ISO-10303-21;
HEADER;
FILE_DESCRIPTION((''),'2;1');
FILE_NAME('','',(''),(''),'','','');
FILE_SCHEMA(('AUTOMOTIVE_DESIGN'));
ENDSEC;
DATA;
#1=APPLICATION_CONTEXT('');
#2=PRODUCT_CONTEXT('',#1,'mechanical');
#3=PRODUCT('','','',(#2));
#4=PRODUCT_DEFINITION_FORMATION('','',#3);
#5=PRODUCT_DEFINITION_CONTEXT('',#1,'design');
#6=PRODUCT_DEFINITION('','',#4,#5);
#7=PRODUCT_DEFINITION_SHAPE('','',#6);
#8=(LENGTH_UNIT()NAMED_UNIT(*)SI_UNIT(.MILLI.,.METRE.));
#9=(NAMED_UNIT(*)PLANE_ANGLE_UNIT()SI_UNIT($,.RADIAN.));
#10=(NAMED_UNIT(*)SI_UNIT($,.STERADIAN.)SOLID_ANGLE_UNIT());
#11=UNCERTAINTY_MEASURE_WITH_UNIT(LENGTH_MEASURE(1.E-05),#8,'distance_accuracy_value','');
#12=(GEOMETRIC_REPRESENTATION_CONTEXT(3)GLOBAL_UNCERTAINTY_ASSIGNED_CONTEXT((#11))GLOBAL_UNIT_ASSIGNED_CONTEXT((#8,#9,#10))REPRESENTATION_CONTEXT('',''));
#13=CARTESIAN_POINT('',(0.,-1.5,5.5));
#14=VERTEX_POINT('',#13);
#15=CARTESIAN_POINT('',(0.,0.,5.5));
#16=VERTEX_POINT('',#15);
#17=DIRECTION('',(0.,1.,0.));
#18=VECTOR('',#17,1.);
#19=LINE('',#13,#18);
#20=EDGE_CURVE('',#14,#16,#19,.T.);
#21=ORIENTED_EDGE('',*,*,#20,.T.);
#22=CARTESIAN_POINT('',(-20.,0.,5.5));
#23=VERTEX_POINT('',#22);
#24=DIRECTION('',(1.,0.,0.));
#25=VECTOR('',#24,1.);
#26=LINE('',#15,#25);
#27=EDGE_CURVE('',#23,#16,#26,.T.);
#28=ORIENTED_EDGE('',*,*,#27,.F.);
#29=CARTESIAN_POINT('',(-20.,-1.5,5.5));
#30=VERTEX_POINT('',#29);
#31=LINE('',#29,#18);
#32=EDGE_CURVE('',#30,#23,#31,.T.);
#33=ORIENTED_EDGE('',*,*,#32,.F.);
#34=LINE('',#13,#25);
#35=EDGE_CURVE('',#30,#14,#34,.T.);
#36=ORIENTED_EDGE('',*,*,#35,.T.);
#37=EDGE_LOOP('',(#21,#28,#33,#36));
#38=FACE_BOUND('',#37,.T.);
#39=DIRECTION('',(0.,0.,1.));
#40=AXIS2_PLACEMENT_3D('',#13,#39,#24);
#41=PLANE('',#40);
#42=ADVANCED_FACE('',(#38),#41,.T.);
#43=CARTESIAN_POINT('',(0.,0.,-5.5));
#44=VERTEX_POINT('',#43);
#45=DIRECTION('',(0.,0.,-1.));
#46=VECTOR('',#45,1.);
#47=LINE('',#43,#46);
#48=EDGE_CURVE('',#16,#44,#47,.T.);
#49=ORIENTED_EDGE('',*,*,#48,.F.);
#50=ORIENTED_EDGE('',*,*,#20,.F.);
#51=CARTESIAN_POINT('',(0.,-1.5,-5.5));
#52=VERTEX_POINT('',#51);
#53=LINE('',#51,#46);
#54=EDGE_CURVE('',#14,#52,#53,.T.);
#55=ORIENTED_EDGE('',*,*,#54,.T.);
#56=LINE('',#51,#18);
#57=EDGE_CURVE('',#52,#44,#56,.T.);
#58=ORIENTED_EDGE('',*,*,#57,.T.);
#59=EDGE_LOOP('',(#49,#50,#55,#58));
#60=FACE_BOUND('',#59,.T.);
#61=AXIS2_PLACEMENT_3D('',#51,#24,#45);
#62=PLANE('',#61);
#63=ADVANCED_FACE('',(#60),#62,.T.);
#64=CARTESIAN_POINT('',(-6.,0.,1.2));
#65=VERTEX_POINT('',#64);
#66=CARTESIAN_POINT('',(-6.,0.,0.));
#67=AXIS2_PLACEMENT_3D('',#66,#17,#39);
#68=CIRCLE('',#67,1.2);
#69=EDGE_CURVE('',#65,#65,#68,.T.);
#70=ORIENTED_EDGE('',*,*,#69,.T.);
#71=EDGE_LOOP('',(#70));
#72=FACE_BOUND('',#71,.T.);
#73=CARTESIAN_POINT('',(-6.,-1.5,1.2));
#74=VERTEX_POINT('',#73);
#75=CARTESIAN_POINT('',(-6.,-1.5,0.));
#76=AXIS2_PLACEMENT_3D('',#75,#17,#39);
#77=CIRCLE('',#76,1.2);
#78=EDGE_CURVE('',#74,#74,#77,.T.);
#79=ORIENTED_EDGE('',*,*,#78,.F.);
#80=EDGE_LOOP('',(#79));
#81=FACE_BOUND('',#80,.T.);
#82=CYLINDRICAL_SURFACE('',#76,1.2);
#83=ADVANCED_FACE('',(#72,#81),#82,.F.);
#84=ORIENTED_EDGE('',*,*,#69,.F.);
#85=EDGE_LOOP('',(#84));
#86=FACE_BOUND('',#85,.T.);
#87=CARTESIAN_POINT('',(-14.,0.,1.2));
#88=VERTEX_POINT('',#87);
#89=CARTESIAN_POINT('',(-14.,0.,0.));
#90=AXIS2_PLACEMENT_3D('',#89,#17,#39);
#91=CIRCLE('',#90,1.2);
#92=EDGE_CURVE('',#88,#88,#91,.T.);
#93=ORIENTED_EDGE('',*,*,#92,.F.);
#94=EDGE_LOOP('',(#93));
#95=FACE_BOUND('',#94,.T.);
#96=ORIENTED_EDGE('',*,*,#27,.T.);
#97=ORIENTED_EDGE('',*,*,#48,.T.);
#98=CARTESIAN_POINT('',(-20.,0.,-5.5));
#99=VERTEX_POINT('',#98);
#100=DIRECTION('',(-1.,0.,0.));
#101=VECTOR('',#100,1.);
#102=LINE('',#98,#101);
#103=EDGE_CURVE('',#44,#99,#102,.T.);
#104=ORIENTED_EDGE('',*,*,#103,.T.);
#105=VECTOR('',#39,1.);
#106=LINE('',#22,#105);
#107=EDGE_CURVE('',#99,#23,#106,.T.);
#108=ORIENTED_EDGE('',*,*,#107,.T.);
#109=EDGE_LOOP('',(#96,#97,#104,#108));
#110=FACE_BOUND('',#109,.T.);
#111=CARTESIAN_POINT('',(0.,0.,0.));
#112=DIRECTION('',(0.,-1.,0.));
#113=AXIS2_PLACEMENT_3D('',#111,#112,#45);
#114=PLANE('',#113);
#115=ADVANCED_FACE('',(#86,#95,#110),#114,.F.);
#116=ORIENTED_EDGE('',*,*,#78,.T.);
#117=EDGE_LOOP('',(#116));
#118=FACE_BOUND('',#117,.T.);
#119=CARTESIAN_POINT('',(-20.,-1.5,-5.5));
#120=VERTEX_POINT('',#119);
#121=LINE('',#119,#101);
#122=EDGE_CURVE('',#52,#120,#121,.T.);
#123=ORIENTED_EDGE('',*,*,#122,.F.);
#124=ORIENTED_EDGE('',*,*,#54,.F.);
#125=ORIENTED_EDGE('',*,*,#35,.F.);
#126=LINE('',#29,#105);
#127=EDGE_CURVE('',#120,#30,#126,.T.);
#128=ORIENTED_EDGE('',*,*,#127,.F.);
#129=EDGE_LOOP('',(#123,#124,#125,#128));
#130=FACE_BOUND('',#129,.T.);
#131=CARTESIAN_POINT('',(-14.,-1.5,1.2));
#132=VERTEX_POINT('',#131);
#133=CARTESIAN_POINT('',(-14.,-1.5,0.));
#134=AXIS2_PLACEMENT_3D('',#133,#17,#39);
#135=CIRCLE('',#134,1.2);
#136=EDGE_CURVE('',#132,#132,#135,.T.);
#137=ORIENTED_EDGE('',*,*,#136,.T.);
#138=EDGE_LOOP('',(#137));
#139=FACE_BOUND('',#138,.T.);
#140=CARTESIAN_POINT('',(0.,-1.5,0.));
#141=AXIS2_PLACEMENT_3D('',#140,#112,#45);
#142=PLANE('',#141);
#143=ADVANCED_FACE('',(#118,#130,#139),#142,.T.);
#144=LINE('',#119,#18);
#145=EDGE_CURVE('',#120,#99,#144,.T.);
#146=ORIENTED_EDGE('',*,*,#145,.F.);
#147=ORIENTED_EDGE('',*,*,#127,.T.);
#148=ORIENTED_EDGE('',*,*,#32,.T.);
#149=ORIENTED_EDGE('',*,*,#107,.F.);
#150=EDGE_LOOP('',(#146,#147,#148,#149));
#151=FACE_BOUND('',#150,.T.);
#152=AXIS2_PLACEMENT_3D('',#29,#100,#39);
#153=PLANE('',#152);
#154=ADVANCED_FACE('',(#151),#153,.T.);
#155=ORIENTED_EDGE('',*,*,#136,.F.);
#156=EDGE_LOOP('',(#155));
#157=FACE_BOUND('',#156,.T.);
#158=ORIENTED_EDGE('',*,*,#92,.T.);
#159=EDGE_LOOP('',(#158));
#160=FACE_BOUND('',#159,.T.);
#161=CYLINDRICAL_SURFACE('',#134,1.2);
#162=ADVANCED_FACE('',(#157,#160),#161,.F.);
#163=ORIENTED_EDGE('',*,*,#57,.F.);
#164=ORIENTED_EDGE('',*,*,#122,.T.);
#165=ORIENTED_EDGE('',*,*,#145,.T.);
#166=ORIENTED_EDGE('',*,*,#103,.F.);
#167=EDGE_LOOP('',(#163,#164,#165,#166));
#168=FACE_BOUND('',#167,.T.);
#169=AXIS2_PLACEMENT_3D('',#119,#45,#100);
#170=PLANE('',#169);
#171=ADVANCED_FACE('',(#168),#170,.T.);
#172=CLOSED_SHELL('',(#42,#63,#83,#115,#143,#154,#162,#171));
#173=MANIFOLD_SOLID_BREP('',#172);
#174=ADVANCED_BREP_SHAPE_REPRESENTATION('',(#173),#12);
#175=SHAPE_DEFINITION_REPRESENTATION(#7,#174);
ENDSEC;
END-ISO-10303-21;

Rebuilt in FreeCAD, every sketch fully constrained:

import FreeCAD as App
import Part
import Sketcher

V = App.Vector


def add_polygon(sketch, points):
    """Adds a closed chain of lines whose ends are joined by coincident constraints."""
    first, n = sketch.GeometryCount, len(points)
    for a, b in zip(points, points[1:] + points[:1]):
        sketch.addGeometry(Part.LineSegment(App.Vector(*a, 0), App.Vector(*b, 0)), False)
    for i in range(n):
        sketch.addConstraint(Sketcher.Constraint("Coincident", first + i, 2, first + (i + 1) % n, 1))

doc = App.newDocument("Part")
params = doc.addObject("Spreadsheet::Sheet", "Params")
for row, (alias, value) in enumerate([
    ("sketch1_width", "20 mm"),
    ("sketch1_height", "11 mm"),
    ("pad1_length", "1.5 mm"),
    ("sketch2_diameter", "2.4 mm"),
    ("pocket1_length", "1.5 mm"),
], start=1):
    params.set(f"A{row}", alias)
    params.set(f"B{row}", "=" + value)
    params.setAlias(f"B{row}", alias)

body = doc.addObject("PartDesign::Body", "Body")

# Sketch on XZ plane
sketch1 = doc.addObject("Sketcher::SketchObject", "Sketch")
body.addObject(sketch1)
sketch1.AttachmentSupport = (doc.XZ_Plane, [""])
sketch1.MapMode = "FlatFace"
add_polygon(sketch1, [(-20, -6), (-20, 6), (0, 6), (0, -6)])  # lines 0-3
sketch1.addConstraint([
    Sketcher.Constraint("Vertical", 0),
    Sketcher.Constraint("Horizontal", 1),
    Sketcher.Constraint("Vertical", 2),
    Sketcher.Constraint("Horizontal", 3),
    Sketcher.Constraint("Symmetric", 1, 2, 2, 2, -1, 1),
    Sketcher.Constraint("DistanceX", 1, 1, 1, 2, 20.0),
    Sketcher.Constraint("DistanceY", 0, 1, 0, 2, 11.0),
])
sketch1.setExpression("Constraints[9]", "Params.sketch1_width")
sketch1.setExpression("Constraints[10]", "Params.sketch1_height")
pad1 = doc.addObject("PartDesign::Pad", "Pad")
body.addObject(pad1)
pad1.Profile = sketch1
pad1.setExpression("Length", "Params.pad1_length")

# Sketch on XZ plane
sketch2 = doc.addObject("Sketcher::SketchObject", "Sketch001")
body.addObject(sketch2)
sketch2.AttachmentSupport = (doc.XZ_Plane, [""])
sketch2.MapMode = "FlatFace"
sketch2.addGeometry([
    Part.Circle(V(-6, 0, 0), V(0, 0, 1), 1.2),
    Part.Circle(V(-14, 0, 0), V(0, 0, 1), 1.2),
], False)
sketch2.addConstraint([
    Sketcher.Constraint("Equal", 0, 1),
    Sketcher.Constraint("PointOnObject", 0, 3, -1),
    Sketcher.Constraint("PointOnObject", 1, 3, -1),
    Sketcher.Constraint("Diameter", 0, 2.4),
    Sketcher.Constraint("DistanceX", 0, 3, -1, 1, 6.0),
    Sketcher.Constraint("DistanceX", 1, 3, -1, 1, 14.0),
])
sketch2.setExpression("Constraints[3]", "Params.sketch2_diameter")
pocket1 = doc.addObject("PartDesign::Pocket", "Pocket")
body.addObject(pocket1)
pocket1.Profile = sketch2
pocket1.setExpression("Length", "Params.pocket1_length")
pocket1.Reversed = True

doc.recompute()
